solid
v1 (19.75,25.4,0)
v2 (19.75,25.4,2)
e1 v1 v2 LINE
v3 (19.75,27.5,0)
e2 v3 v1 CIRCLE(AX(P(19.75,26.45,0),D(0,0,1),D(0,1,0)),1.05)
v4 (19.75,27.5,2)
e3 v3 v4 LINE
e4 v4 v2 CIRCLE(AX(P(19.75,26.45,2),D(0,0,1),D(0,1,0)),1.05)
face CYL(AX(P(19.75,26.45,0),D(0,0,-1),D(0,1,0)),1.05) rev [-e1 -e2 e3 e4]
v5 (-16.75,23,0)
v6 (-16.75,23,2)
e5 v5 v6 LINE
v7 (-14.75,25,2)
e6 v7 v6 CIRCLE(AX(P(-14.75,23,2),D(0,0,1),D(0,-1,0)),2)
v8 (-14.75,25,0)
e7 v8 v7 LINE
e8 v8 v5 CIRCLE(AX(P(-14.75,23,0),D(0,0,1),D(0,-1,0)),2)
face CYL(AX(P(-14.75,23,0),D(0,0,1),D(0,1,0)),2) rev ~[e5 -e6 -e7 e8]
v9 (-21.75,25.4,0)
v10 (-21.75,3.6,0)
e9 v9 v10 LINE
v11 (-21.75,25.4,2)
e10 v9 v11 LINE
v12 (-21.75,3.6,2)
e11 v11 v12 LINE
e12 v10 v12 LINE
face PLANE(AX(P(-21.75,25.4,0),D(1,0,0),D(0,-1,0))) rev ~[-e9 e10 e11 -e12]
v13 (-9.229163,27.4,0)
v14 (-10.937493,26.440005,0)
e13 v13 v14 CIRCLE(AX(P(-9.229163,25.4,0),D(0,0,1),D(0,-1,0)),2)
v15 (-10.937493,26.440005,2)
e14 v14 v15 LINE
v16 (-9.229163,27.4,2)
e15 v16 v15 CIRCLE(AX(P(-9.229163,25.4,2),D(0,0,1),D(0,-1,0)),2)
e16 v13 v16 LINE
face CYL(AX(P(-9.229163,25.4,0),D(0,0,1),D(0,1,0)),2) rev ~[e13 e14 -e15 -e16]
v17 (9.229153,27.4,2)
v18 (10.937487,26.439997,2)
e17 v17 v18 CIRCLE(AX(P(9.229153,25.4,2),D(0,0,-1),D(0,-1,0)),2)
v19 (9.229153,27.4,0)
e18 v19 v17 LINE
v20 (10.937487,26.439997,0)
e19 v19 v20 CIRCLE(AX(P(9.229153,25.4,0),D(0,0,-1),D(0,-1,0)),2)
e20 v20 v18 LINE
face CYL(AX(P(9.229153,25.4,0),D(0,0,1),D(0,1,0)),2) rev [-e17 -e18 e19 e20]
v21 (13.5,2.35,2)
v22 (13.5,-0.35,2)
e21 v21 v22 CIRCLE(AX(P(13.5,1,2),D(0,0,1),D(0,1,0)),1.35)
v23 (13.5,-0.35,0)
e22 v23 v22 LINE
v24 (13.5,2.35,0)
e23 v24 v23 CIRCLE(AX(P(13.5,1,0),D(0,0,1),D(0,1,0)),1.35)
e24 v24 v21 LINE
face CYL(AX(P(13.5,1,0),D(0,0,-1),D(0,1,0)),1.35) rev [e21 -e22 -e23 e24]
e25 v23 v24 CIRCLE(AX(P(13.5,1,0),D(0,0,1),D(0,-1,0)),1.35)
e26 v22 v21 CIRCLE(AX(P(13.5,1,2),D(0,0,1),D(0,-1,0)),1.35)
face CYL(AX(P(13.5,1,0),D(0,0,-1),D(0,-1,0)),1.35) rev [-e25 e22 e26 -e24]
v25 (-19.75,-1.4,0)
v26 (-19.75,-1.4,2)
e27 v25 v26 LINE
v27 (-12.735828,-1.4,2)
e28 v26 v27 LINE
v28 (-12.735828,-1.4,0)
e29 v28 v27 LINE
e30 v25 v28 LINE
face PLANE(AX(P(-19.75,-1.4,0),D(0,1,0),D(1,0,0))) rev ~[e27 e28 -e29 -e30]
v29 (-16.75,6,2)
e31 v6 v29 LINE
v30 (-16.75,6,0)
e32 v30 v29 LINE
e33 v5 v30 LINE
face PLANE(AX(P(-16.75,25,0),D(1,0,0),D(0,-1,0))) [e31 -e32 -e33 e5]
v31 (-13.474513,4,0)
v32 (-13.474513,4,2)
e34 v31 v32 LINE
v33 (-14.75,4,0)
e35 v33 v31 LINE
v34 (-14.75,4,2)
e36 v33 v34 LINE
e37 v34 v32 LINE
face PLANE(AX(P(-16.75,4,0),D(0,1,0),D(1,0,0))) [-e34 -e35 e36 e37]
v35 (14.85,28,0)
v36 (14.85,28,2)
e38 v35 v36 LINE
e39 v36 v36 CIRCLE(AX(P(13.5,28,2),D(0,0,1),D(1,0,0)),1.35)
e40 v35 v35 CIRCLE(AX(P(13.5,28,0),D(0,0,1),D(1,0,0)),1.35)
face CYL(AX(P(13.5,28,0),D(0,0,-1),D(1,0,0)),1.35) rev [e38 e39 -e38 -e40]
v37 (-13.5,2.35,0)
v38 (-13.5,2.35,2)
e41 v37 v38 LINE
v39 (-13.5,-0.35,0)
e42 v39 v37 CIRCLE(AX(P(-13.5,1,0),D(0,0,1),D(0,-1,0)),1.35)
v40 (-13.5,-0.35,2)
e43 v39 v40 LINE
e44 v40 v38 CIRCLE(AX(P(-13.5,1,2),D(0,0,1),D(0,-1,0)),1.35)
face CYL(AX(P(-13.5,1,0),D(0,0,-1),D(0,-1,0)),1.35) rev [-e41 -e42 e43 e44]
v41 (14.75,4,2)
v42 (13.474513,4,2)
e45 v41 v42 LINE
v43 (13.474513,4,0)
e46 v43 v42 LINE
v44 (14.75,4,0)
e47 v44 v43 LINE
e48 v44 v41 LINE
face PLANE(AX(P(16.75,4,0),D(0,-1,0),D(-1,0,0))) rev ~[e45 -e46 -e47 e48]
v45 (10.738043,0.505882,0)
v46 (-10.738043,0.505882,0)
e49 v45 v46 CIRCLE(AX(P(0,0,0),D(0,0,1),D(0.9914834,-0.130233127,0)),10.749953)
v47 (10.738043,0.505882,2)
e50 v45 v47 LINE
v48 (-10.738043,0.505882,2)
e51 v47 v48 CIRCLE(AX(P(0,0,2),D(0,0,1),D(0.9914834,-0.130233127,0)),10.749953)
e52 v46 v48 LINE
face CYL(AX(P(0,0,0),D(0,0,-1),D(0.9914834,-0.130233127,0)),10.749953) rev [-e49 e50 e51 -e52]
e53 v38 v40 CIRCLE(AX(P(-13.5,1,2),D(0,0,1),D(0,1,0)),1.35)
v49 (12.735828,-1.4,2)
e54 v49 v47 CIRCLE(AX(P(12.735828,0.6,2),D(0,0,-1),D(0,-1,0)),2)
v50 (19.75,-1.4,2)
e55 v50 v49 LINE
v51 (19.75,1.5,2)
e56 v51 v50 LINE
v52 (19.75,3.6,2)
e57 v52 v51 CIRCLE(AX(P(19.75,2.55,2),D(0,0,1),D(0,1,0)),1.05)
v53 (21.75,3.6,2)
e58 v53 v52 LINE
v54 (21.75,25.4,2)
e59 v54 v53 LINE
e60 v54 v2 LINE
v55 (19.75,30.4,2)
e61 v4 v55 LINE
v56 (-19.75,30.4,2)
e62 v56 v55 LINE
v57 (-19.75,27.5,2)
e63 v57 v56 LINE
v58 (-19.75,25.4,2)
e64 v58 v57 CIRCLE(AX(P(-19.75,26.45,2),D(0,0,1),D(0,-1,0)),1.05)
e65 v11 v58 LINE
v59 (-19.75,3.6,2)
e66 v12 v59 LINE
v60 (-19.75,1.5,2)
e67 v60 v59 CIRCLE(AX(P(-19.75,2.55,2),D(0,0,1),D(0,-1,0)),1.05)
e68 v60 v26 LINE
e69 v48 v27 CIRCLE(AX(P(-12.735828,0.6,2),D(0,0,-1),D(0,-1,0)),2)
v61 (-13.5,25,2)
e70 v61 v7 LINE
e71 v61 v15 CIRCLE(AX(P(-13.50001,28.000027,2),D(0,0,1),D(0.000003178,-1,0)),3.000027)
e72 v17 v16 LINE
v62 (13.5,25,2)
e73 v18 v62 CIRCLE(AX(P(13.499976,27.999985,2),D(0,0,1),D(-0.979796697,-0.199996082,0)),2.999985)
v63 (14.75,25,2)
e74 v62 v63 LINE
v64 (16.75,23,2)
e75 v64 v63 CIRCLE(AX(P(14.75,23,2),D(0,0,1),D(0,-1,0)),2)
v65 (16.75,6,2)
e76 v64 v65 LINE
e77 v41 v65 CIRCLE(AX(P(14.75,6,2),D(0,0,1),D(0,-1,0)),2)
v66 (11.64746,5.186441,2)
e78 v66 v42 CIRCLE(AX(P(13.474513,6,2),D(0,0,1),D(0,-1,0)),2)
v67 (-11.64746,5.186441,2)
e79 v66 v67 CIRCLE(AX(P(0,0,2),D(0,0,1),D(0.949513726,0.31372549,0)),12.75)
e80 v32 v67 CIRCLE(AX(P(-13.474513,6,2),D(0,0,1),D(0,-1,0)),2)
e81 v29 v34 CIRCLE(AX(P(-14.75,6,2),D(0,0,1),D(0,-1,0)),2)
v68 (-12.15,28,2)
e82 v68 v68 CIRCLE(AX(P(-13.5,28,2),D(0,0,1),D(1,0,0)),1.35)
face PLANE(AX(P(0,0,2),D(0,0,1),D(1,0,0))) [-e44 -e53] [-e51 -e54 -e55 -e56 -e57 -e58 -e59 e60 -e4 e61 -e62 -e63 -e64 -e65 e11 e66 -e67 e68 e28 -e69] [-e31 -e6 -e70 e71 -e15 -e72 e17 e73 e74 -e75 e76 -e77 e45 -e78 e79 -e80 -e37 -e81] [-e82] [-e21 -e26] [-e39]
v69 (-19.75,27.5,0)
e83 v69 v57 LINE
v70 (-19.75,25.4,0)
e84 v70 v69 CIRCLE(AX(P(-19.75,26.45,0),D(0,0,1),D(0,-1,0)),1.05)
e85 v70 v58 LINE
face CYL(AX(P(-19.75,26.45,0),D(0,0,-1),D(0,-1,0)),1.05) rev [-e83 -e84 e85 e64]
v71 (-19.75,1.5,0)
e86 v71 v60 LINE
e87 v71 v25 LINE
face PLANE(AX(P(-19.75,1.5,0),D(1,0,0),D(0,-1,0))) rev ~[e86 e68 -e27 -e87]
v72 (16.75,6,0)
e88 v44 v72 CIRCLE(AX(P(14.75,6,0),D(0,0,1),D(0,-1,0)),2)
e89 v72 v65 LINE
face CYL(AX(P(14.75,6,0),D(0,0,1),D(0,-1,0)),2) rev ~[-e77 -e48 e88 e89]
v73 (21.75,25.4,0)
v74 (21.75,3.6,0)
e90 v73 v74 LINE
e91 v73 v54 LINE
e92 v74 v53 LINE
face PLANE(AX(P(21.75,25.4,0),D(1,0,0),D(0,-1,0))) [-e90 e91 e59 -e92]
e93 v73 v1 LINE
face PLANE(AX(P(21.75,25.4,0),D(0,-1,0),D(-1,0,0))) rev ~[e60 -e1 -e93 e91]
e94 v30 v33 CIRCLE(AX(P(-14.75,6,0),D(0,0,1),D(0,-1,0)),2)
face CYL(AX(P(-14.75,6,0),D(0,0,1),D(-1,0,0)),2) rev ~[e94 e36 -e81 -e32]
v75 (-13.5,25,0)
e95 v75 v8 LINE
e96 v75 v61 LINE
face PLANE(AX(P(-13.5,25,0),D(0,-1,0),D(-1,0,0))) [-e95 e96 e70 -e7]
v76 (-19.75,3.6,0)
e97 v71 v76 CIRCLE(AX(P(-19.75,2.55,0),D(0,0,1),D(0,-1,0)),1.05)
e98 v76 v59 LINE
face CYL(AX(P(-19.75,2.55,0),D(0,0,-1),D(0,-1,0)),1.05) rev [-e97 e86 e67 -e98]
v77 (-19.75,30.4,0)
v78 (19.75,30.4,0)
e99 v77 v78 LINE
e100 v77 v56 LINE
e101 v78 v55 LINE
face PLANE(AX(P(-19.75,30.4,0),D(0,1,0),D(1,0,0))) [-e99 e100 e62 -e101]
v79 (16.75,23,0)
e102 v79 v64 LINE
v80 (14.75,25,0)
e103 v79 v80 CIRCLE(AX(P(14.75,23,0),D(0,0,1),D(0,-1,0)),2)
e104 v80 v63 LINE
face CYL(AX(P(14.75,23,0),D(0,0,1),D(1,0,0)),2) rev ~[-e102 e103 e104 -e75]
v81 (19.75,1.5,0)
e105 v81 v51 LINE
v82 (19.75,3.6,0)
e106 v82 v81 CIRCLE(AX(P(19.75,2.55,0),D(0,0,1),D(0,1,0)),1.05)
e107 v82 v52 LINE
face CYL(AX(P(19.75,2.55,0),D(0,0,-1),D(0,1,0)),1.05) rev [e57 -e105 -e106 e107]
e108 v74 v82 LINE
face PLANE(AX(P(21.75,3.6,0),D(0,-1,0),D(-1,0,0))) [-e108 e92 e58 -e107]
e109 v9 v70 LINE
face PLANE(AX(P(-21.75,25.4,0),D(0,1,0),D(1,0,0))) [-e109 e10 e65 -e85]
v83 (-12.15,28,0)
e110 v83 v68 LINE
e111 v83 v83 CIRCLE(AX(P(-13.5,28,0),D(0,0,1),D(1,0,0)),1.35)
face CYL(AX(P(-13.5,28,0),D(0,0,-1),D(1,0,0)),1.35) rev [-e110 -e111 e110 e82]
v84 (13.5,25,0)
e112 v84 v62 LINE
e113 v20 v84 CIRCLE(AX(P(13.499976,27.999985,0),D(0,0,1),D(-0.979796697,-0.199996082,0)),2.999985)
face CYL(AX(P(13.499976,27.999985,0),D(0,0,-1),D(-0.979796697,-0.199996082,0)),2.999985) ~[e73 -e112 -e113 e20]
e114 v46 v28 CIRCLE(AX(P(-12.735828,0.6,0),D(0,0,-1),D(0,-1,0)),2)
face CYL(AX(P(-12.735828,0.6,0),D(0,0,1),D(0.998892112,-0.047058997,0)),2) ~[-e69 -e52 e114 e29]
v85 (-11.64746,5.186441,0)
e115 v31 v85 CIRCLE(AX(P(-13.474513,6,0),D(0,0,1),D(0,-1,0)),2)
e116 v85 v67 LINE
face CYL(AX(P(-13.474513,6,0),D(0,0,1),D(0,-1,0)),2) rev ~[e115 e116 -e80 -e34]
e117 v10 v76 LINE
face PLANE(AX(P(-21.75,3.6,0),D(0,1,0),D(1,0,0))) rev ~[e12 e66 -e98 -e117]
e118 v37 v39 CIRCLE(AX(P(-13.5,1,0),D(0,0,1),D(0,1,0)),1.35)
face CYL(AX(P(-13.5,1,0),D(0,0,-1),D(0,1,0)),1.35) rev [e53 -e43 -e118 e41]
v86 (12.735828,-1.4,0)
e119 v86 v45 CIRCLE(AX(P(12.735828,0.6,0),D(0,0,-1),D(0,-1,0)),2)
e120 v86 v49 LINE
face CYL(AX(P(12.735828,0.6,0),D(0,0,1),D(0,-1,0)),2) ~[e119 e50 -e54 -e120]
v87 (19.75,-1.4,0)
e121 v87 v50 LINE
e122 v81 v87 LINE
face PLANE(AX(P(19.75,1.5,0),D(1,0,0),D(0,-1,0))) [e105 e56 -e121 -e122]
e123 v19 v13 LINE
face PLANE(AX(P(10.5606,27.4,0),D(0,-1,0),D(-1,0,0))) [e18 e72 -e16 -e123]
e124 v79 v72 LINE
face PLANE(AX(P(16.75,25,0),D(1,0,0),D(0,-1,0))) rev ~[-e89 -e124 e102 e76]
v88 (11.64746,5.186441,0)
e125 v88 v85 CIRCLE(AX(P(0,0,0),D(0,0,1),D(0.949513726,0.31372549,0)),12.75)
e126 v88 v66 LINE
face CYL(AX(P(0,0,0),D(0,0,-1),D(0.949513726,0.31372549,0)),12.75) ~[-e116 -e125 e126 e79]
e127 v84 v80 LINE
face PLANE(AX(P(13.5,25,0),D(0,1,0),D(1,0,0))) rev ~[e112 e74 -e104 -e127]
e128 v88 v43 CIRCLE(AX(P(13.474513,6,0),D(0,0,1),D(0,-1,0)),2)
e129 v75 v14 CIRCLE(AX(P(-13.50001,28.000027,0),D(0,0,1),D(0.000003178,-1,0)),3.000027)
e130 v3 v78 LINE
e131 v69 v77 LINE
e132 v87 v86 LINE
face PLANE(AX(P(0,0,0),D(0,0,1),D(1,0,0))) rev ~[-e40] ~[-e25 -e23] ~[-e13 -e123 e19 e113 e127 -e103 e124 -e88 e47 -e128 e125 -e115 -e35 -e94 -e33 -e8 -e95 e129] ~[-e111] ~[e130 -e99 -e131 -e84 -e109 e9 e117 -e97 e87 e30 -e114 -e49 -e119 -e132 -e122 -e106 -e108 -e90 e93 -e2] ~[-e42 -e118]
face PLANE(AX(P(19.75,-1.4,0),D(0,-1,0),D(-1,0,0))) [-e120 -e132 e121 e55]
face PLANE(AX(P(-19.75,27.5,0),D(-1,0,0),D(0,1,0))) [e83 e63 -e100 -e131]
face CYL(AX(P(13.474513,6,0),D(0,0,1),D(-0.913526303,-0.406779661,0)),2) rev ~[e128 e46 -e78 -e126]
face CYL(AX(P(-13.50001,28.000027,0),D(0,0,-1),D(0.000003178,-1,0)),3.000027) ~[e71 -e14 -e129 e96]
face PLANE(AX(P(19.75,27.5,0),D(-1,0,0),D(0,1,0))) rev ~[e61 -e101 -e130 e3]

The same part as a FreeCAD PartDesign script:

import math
import FreeCAD as App
import Part
import Sketcher
from FreeCAD import Vector
Q = App.Units.Quantity


def edges_at(feature, points):
    """Names of the edges that pass closest to the given points."""
    edges = feature.Shape.Edges
    near = lambda p: min(range(len(edges)), key=lambda i: edges[i].distToShape(Part.Vertex(*p))[0])
    return sorted({f"Edge{near(p) + 1}" for p in points})

doc = App.newDocument("Part")
body = doc.addObject("PartDesign::Body", "Body")

sketch1 = body.newObject("Sketcher::SketchObject", "Sketch")
sketch1.AttachmentSupport = (doc.getObject("XY_Plane"), [""])
sketch1.MapMode = "FlatFace"
sketch1.addGeometry([
    Part.LineSegment(Vector(19.8, 30.4, 0), Vector(-19.8, 30.4, 0)),
    Part.LineSegment(Vector(-19.8, 30.4, 0), Vector(-19.8, 27.5, 0)),
    Part.ArcOfCircle(Part.Circle(Vector(-19.8, 26.4, 0), Vector(0, 0, 1), 1.1), math.radians(-90), math.radians(90)),
    Part.LineSegment(Vector(-19.8, 25.4, 0), Vector(-21.8, 25.4, 0)),
    Part.LineSegment(Vector(-21.8, 25.4, 0), Vector(-21.8, 3.6, 0)),
    Part.LineSegment(Vector(-21.8, 3.6, 0), Vector(-19.8, 3.6, 0)),
    Part.ArcOfCircle(Part.Circle(Vector(-19.8, 2.5, 0), Vector(0, 0, 1), 1), math.radians(-90), math.radians(90)),
    Part.LineSegment(Vector(-19.8, 1.5, 0), Vector(-19.8, -1.4, 0)),
    Part.LineSegment(Vector(-19.8, -1.4, 0), Vector(-10.7, -1.4, 0)),
    Part.ArcOfCircle(Part.Circle(Vector(0, 0, 0), Vector(0, 0, 1), 10.7), math.radians(-7), math.radians(187)),
    Part.LineSegment(Vector(10.7, -1.4, 0), Vector(19.8, -1.4, 0)),
    Part.LineSegment(Vector(19.8, -1.4, 0), Vector(19.8, 1.5, 0)),
    Part.ArcOfCircle(Part.Circle(Vector(19.8, 2.5, 0), Vector(0, 0, 1), 1.1), math.radians(90), math.radians(270)),
    Part.LineSegment(Vector(19.8, 3.6, 0), Vector(21.8, 3.6, 0)),
    Part.LineSegment(Vector(21.8, 3.6, 0), Vector(21.8, 25.4, 0)),
    Part.LineSegment(Vector(21.8, 25.4, 0), Vector(19.8, 25.4, 0)),
    Part.ArcOfCircle(Part.Circle(Vector(19.8, 26.4, 0), Vector(0, 0, 1), 1.1), math.radians(90), math.radians(270)),
    Part.LineSegment(Vector(19.8, 27.5, 0), Vector(19.8, 30.4, 0)),
    Part.Circle(Vector(-13.5, 1, 0), Vector(0, 0, 1), 1.4),
    Part.Circle(Vector(13.5, 1, 0), Vector(0, 0, 1), 1.4),
    Part.Circle(Vector(-13.5, 28, 0), Vector(0, 0, 1), 1.4),
    Part.LineSegment(Vector(-10.6, 27.4, 0), Vector(10.6, 27.4, 0)),
    Part.ArcOfCircle(Part.Circle(Vector(13.5, 28, 0), Vector(0, 0, 1), 3), math.radians(-168), math.radians(-90)),
    Part.LineSegment(Vector(13.5, 25, 0), Vector(16.8, 25, 0)),
    Part.LineSegment(Vector(16.8, 25, 0), Vector(16.8, 4, 0)),
    Part.LineSegment(Vector(16.8, 4, 0), Vector(12.1, 4, 0)),
    Part.ArcOfCircle(Part.Circle(Vector(0, 0, 0), Vector(0, 0, 1), 12.7), math.radians(18), math.radians(162)),
    Part.LineSegment(Vector(-12.1, 4, 0), Vector(-16.8, 4, 0)),
    Part.LineSegment(Vector(-16.8, 4, 0), Vector(-16.8, 25, 0)),
    Part.LineSegment(Vector(-16.8, 25, 0), Vector(-13.5, 25, 0)),
    Part.ArcOfCircle(Part.Circle(Vector(-13.5, 28, 0), Vector(0, 0, 1), 3), math.radians(-90), math.radians(-12)),
    Part.Circle(Vector(13.5, 28, 0), Vector(0, 0, 1), 1.4),
], False)
sketch1.addConstraint([
    Sketcher.Constraint("Coincident", 0, 2, 1, 1),
    Sketcher.Constraint("Coincident", 1, 2, 2, 2),
    Sketcher.Constraint("Tangent", 2, 1, 3, 1),
    Sketcher.Constraint("Coincident", 3, 2, 4, 1),
    Sketcher.Constraint("Coincident", 4, 2, 5, 1),
    Sketcher.Constraint("Tangent", 5, 2, 6, 2),
    Sketcher.Constraint("Coincident", 6, 1, 7, 1),
    Sketcher.Constraint("Coincident", 7, 2, 8, 1),
    Sketcher.Constraint("Coincident", 8, 2, 9, 2),
    Sketcher.Constraint("Coincident", 9, 1, 10, 1),
    Sketcher.Constraint("Coincident", 10, 2, 11, 1),
    Sketcher.Constraint("Coincident", 11, 2, 12, 2),
    Sketcher.Constraint("Tangent", 12, 1, 13, 1),
    Sketcher.Constraint("Coincident", 13, 2, 14, 1),
    Sketcher.Constraint("Coincident", 14, 2, 15, 1),
    Sketcher.Constraint("Tangent", 15, 2, 16, 2),
    Sketcher.Constraint("Coincident", 16, 1, 17, 1),
    Sketcher.Constraint("Coincident", 17, 2, 0, 1),
    Sketcher.Constraint("Coincident", 21, 2, 22, 1),
    Sketcher.Constraint("Tangent", 22, 2, 23, 1),
    Sketcher.Constraint("Coincident", 23, 2, 24, 1),
    Sketcher.Constraint("Coincident", 24, 2, 25, 1),
    Sketcher.Constraint("Coincident", 25, 2, 26, 1),
    Sketcher.Constraint("Coincident", 26, 2, 27, 1),
    Sketcher.Constraint("Coincident", 27, 2, 28, 1),
    Sketcher.Constraint("Coincident", 28, 2, 29, 1),
    Sketcher.Constraint("Tangent", 29, 2, 30, 1),
    Sketcher.Constraint("Coincident", 30, 2, 21, 1),
    Sketcher.Constraint("Horizontal", 0),
    Sketcher.Constraint("Vertical", 1),
    Sketcher.Constraint("Horizontal", 3),
    Sketcher.Constraint("Vertical", 4),
    Sketcher.Constraint("Horizontal", 5),
    Sketcher.Constraint("Vertical", 7),
    Sketcher.Constraint("Horizontal", 8),
    Sketcher.Constraint("Horizontal", 10),
    Sketcher.Constraint("Vertical", 11),
    Sketcher.Constraint("Horizontal", 13),
    Sketcher.Constraint("Vertical", 14),
    Sketcher.Constraint("Horizontal", 15),
    Sketcher.Constraint("Vertical", 17),
    Sketcher.Constraint("Horizontal", 21),
    Sketcher.Constraint("Horizontal", 23),
    Sketcher.Constraint("Vertical", 24),
    Sketcher.Constraint("Horizontal", 25),
    Sketcher.Constraint("Horizontal", 27),
    Sketcher.Constraint("Vertical", 28),
    Sketcher.Constraint("Horizontal", 29),
    Sketcher.Constraint("Coincident", 9, 3, -1, 1),
    Sketcher.Constraint("Coincident", 26, 3, -1, 1),
    Sketcher.Constraint("Coincident", 30, 3, 20, 3),
    Sketcher.Constraint("Coincident", 31, 3, 22, 3),
    Sketcher.Constraint("Equal", 2, 6),
    Sketcher.Constraint("Equal", 6, 12),
    Sketcher.Constraint("Equal", 12, 16),
    Sketcher.Constraint("Equal", 18, 19),
    Sketcher.Constraint("Equal", 19, 20),
    Sketcher.Constraint("Equal", 22, 30),
    Sketcher.Constraint("Equal", 20, 31),
    Sketcher.Constraint("Symmetric", 6, 3, 12, 3, -2),
    Sketcher.Constraint("Symmetric", 2, 3, 16, 3, -2),
    Sketcher.Constraint("Symmetric", 18, 3, 19, 3, -2),
    Sketcher.Constraint("Symmetric", 20, 3, 22, 3, -2),
    Sketcher.Constraint("Symmetric", 7, 2, 10, 2, -2),
    Sketcher.Constraint("Symmetric", 24, 2, 27, 2, -2),
    Sketcher.Constraint("Vertical", 2, 3, 6, 3),
    Sketcher.Constraint("Vertical", 18, 3, 20, 3),
    Sketcher.Constraint("Vertical", 6, 3, 0, 2),
    Sketcher.Constraint("Vertical", 5, 2, 6, 1),
    Sketcher.Constraint("Vertical", 15, 2, 16, 1),
    Sketcher.Constraint("Equal", 5, 13),
    Sketcher.Constraint("Equal", 1, 7),
    Sketcher.Constraint("Radius", 22, Q("3 mm")),
    Sketcher.Constraint("Diameter", 18, Q("2.7 mm")),
    Sketcher.Constraint("DistanceX", 3, 2, 3, 1, Q("2 mm")),
    Sketcher.Constraint("DistanceY", 24, 2, 24, 1, Q("21 mm")),
    Sketcher.Constraint("Radius", 2, Q("1.05 mm")),
    Sketcher.Constraint("DistanceX", 0, 2, 0, 1, Q("39.5 mm")),
    Sketcher.Constraint("DistanceY", 4, 2, 4, 1, Q("21.8 mm")),
    Sketcher.Constraint("DistanceY", -1, 1, 18, 3, Q("1 mm")),
    Sketcher.Constraint("DistanceX", 18, 3, 19, 3, Q("27 mm")),
    Sketcher.Constraint("DistanceY", 18, 3, 20, 3, Q("27 mm")),
    Sketcher.Constraint("DistanceY", 2, 1, 0, 2, Q("5 mm")),
    Sketcher.Constraint("DistanceY", 15, 2, 21, 2, Q("2 mm")),
    Sketcher.Constraint("DistanceX", 23, 2, 15, 2, Q("3 mm")),
    Sketcher.Constraint("Radius", 9, Q("10.75 mm")),
    Sketcher.Constraint("Radius", 26, Q("12.75 mm")),
    Sketcher.Constraint("DistanceY", -1, 1, 0, 2, Q("30.4 mm")),
])
pad1 = body.newObject("PartDesign::Pad", "Pad")
pad1.Profile = sketch1
pad1.Length = 2
doc.recompute()

fillet = body.newObject("PartDesign::Fillet", "Fillet")
fillet.Base = (pad1, edges_at(pad1, [(-10.658, -1.4, 1), (10.658, -1.4, 1)]))
fillet.Radius = 2
doc.recompute()

fillet2 = body.newObject("PartDesign::Fillet", "Fillet001")
fillet2.Base = (fillet, edges_at(fillet, [
    (-16.75, 4, 1),
    (-16.75, 25, 1),
    (-10.561, 27.4, 1),
    (10.561, 27.4, 1),
    (16.75, 25, 1),
    (16.75, 4, 1),
    (12.106, 4, 1),
    (-12.106, 4, 1),
]))
fillet2.Radius = 2

doc.recompute()
